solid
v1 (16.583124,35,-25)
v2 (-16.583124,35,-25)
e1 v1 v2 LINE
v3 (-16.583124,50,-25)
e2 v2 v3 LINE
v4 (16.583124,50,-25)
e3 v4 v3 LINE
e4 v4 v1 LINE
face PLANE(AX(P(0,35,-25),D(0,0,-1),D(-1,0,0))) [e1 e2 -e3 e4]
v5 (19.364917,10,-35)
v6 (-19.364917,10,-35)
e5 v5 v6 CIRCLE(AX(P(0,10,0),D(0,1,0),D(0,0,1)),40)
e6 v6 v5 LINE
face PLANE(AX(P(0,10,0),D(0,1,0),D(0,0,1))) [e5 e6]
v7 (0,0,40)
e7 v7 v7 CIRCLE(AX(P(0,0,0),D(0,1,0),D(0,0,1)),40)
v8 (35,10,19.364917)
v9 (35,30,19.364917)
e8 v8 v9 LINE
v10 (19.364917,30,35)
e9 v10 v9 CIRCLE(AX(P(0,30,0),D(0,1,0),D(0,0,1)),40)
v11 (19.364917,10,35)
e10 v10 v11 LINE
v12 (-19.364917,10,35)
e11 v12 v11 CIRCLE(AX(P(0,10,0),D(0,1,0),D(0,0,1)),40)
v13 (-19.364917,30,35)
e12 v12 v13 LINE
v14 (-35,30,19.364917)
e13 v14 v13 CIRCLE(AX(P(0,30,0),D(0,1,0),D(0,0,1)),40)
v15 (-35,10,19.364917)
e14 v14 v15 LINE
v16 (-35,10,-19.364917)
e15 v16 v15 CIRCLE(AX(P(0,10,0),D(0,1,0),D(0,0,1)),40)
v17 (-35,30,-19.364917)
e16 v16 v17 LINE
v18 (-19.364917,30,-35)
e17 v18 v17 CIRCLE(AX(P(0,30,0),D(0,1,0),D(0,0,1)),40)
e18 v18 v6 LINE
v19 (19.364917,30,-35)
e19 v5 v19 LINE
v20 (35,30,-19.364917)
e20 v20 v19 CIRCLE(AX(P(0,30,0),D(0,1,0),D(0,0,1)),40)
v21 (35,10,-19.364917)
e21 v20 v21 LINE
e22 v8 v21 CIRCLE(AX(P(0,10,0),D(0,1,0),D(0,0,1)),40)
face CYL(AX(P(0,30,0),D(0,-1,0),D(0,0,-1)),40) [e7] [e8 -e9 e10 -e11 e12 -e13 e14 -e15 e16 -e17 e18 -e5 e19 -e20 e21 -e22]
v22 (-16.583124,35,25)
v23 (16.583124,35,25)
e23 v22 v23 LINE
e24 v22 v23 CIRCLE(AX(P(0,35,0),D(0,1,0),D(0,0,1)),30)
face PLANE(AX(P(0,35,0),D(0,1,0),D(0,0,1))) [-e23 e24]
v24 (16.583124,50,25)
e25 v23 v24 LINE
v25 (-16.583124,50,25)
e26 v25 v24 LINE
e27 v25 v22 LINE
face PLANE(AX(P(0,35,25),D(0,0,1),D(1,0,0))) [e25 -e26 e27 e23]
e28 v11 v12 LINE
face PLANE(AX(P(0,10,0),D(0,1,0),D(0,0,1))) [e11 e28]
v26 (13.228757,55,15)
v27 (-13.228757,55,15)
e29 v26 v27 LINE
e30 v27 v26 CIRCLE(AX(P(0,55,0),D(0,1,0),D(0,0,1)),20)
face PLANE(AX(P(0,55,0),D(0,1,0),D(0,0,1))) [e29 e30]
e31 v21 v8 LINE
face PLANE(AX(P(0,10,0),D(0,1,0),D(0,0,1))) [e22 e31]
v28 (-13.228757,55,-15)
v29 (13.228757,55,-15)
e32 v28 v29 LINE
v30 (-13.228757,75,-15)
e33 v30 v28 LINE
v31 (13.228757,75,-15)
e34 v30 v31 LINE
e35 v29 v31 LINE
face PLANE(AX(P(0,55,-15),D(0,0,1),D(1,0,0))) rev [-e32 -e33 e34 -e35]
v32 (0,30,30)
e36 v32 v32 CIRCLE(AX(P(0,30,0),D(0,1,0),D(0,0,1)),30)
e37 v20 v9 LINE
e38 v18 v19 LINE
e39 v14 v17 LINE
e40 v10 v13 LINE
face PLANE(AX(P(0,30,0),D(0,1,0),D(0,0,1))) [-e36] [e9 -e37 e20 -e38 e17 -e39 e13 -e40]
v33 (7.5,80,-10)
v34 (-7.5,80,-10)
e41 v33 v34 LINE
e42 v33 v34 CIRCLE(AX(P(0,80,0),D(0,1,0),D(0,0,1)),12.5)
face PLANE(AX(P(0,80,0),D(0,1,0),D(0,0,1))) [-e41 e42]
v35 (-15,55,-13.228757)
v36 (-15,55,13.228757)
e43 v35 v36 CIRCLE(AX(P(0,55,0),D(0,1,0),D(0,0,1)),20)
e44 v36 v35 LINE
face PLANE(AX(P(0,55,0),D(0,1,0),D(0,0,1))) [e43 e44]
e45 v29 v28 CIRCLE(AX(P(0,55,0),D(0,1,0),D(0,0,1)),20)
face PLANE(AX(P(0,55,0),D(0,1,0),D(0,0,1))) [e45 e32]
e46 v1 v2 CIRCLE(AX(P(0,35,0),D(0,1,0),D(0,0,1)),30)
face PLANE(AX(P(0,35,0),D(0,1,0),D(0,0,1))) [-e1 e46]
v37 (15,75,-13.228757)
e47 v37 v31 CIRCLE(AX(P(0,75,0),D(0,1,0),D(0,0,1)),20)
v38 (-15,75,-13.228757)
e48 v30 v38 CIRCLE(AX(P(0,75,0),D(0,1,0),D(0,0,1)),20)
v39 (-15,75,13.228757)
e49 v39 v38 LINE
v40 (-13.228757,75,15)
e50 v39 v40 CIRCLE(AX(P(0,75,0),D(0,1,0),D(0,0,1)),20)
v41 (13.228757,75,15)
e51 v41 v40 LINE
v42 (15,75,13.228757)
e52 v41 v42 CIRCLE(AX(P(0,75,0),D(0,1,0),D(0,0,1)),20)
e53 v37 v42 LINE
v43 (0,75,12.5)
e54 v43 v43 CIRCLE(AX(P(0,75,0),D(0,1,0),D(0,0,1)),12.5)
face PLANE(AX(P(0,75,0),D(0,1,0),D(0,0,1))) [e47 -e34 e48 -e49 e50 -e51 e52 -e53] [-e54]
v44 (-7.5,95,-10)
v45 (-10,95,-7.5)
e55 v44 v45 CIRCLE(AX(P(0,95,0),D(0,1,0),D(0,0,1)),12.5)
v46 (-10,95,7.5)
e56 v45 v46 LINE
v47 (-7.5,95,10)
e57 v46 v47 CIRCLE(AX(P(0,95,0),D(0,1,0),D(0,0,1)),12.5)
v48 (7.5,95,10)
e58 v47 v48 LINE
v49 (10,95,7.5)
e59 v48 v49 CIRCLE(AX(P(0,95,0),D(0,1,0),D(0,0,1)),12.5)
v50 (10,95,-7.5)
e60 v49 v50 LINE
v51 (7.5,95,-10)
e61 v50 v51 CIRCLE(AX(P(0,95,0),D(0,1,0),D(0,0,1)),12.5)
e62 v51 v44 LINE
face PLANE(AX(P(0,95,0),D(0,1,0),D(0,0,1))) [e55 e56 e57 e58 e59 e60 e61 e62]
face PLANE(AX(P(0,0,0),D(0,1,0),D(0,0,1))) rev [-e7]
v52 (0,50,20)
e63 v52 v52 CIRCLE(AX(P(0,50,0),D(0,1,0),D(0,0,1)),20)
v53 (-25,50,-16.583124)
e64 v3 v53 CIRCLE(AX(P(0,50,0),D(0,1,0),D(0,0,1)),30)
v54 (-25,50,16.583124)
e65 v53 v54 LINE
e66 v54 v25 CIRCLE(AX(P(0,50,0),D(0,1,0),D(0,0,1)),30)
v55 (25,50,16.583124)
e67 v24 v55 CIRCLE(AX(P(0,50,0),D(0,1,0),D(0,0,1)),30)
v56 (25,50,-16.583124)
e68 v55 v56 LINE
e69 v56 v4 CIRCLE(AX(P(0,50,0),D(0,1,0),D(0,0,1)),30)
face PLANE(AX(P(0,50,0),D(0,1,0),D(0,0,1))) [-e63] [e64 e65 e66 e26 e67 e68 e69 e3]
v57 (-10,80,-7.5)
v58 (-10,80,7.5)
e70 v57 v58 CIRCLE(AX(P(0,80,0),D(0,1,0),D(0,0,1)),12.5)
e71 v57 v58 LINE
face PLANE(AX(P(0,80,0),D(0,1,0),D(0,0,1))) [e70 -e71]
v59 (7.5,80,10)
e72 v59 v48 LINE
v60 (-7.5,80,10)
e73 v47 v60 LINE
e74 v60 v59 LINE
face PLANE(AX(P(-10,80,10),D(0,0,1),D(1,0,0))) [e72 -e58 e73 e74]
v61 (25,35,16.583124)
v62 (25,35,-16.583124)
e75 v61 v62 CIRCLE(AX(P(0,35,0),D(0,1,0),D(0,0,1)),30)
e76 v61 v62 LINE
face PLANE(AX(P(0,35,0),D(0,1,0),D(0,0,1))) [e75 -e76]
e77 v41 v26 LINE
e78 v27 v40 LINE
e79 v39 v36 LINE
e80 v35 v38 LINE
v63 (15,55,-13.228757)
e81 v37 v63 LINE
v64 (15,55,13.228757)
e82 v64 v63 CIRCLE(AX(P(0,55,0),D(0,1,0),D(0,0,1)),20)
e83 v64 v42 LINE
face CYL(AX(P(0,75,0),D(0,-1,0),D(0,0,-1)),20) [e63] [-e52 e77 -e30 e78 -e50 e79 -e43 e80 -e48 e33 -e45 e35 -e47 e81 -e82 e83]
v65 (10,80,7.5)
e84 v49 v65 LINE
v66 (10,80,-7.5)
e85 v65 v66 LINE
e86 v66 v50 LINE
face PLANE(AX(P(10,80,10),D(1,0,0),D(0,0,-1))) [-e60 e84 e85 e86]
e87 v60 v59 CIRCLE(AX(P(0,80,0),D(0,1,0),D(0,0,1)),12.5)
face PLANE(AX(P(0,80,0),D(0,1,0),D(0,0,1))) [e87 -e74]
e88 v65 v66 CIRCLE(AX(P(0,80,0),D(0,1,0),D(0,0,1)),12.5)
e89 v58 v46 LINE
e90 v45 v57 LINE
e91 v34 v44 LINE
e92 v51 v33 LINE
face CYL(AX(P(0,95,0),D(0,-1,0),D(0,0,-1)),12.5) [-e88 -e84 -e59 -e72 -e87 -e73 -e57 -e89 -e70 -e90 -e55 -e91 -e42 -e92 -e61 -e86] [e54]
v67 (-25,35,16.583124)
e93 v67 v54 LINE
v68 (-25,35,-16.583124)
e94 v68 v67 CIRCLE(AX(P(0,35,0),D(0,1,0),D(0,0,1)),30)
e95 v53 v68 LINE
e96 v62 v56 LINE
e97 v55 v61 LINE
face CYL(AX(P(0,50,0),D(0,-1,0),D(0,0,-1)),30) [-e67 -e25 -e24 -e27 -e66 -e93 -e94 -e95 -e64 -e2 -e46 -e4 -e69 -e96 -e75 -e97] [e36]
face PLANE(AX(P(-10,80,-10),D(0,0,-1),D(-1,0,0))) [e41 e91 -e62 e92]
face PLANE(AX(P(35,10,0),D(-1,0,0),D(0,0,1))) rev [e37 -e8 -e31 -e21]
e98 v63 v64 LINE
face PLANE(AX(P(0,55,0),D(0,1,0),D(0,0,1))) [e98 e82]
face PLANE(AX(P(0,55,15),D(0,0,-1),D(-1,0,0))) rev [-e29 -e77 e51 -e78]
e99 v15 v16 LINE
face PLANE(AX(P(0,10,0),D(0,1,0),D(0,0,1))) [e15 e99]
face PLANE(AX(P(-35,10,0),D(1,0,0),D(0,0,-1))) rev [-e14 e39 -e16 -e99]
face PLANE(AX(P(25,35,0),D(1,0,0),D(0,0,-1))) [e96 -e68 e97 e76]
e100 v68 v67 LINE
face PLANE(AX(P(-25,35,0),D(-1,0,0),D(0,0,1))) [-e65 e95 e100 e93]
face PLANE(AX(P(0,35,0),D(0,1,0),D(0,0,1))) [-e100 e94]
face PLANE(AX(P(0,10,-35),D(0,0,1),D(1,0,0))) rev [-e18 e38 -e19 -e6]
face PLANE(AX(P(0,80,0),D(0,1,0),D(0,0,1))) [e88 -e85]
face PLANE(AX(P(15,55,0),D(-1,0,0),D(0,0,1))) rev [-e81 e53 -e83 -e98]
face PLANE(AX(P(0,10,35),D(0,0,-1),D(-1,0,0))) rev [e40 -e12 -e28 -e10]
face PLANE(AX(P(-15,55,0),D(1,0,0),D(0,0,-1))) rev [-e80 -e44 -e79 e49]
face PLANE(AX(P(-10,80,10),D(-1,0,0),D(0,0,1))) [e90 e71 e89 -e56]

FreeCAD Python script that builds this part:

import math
import FreeCAD as App
import Part
import Sketcher

doc = App.newDocument("Part")
body = doc.addObject("PartDesign::Body", "Body")

sketch1 = doc.addObject("Sketcher::SketchObject", "Sketch")
body.addObject(sketch1)
sketch1.AttachmentSupport = (doc.XZ_Plane, [""])
sketch1.MapMode = "FlatFace"
sketch1.addGeometry(Part.Circle(App.Vector(0, 0, 0), App.Vector(0, 0, 1), 40), False)
sketch1.addConstraint([
    Sketcher.Constraint("Coincident", 0, 3, -1, 1),
    Sketcher.Constraint("Diameter", 0, 80.0),
])
pad1 = doc.addObject("PartDesign::Pad", "Pad")
body.addObject(pad1)
pad1.Profile = sketch1
pad1.Length = 30
pad1.Reversed = True

sketch2 = doc.addObject("Sketcher::SketchObject", "Sketch001")
body.addObject(sketch2)
sketch2.AttachmentSupport = (doc.XZ_Plane, [""])
sketch2.MapMode = "FlatFace"
sketch2.AttachmentOffset = App.Placement(App.Vector(0, 0, -30), App.Rotation())
sketch2.addGeometry(Part.Circle(App.Vector(0, 0, 0), App.Vector(0, 0, 1), 30), False)
sketch2.addConstraint([
    Sketcher.Constraint("Coincident", 0, 3, -1, 1),
    Sketcher.Constraint("Diameter", 0, 60.0),
])
pad2 = doc.addObject("PartDesign::Pad", "Pad001")
body.addObject(pad2)
pad2.Profile = sketch2
pad2.Length = 20
pad2.Reversed = True

sketch3 = doc.addObject("Sketcher::SketchObject", "Sketch002")
body.addObject(sketch3)
sketch3.AttachmentSupport = (doc.XZ_Plane, [""])
sketch3.MapMode = "FlatFace"
sketch3.AttachmentOffset = App.Placement(App.Vector(0, 0, -50), App.Rotation())
sketch3.addGeometry(Part.Circle(App.Vector(0, 0, 0), App.Vector(0, 0, 1), 20), False)
sketch3.addConstraint([
    Sketcher.Constraint("Coincident", 0, 3, -1, 1),
    Sketcher.Constraint("Diameter", 0, 40.0),
])
pad3 = doc.addObject("PartDesign::Pad", "Pad002")
body.addObject(pad3)
pad3.Profile = sketch3
pad3.Length = 25
pad3.Reversed = True

sketch4 = doc.addObject("Sketcher::SketchObject", "Sketch003")
body.addObject(sketch4)
sketch4.AttachmentSupport = (doc.XZ_Plane, [""])
sketch4.MapMode = "FlatFace"
sketch4.AttachmentOffset = App.Placement(App.Vector(0, 0, -75), App.Rotation())
sketch4.addGeometry(Part.Circle(App.Vector(0, 0, 0), App.Vector(0, 0, 1), 12), False)
sketch4.addConstraint([
    Sketcher.Constraint("Coincident", 0, 3, -1, 1),
    Sketcher.Constraint("Diameter", 0, 25.0),
])
pad4 = doc.addObject("PartDesign::Pad", "Pad003")
body.addObject(pad4)
pad4.Profile = sketch4
pad4.Length = 20
pad4.Reversed = True

sketch5 = doc.addObject("Sketcher::SketchObject", "Sketch004")
body.addObject(sketch5)
sketch5.AttachmentSupport = (doc.XZ_Plane, [""])
sketch5.MapMode = "FlatFace"
sketch5.AttachmentOffset = App.Placement(App.Vector(0, 0, -95), App.Rotation())
sketch5.addGeometry([
    Part.LineSegment(App.Vector(-56, -56, 0), App.Vector(-56, 56, 0)),
    Part.LineSegment(App.Vector(-56, 56, 0), App.Vector(56, 56, 0)),
    Part.LineSegment(App.Vector(56, 56, 0), App.Vector(56, -56, 0)),
    Part.LineSegment(App.Vector(56, -56, 0), App.Vector(-56, -56, 0)),
    Part.LineSegment(App.Vector(10, 10, 0), App.Vector(-10, 10, 0)),
    Part.LineSegment(App.Vector(-10, 10, 0), App.Vector(-10, -10, 0)),
    Part.LineSegment(App.Vector(-10, -10, 0), App.Vector(10, -10, 0)),
    Part.LineSegment(App.Vector(10, -10, 0), App.Vector(10, 10, 0)),
], False)
sketch5.addConstraint([
    Sketcher.Constraint("Coincident", 0, 2, 1, 1),
    Sketcher.Constraint("Coincident", 1, 2, 2, 1),
    Sketcher.Constraint("Coincident", 2, 2, 3, 1),
    Sketcher.Constraint("Coincident", 3, 2, 0, 1),
    Sketcher.Constraint("Coincident", 4, 2, 5, 1),
    Sketcher.Constraint("Coincident", 5, 2, 6, 1),
    Sketcher.Constraint("Coincident", 6, 2, 7, 1),
    Sketcher.Constraint("Coincident", 7, 2, 4, 1),
    Sketcher.Constraint("Vertical", 0),
    Sketcher.Constraint("Horizontal", 1),
    Sketcher.Constraint("Vertical", 2),
    Sketcher.Constraint("Horizontal", 3),
    Sketcher.Constraint("Horizontal", 4),
    Sketcher.Constraint("Vertical", 5),
    Sketcher.Constraint("Horizontal", 6),
    Sketcher.Constraint("Vertical", 7),
    Sketcher.Constraint("Symmetric", 0, 2, 2, 2, -1, 1),
    Sketcher.Constraint("Symmetric", 4, 2, 6, 2, -1, 1),
    Sketcher.Constraint("Equal", 3, 0),
    Sketcher.Constraint("Equal", 6, 5),
    Sketcher.Constraint("DistanceX", 4, 2, 4, 1, 20.0),
    Sketcher.Constraint("DistanceX", 1, 1, 1, 2, 111.546),
])
pocket1 = doc.addObject("PartDesign::Pocket", "Pocket")
body.addObject(pocket1)
pocket1.Profile = sketch5
pocket1.Length = 15
pocket1.Reversed = True

sketch6 = doc.addObject("Sketcher::SketchObject", "Sketch005")
body.addObject(sketch6)
sketch6.AttachmentSupport = (doc.XZ_Plane, [""])
sketch6.MapMode = "FlatFace"
sketch6.AttachmentOffset = App.Placement(App.Vector(0, 0, -75), App.Rotation())
sketch6.addGeometry([
    Part.LineSegment(App.Vector(-6, -21, 0), App.Vector(-15, -15, 0)),
    Part.LineSegment(App.Vector(-15, -15, 0), App.Vector(15, -15, 0)),
    Part.LineSegment(App.Vector(15, -15, 0), App.Vector(14, -21, 0)),
    Part.LineSegment(App.Vector(14, -21, 0), App.Vector(-6, -21, 0)),
    Part.LineSegment(App.Vector(-15, 15, 0), App.Vector(-15, -15, 0)),
    Part.LineSegment(App.Vector(-15, -15, 0), App.Vector(-21, -14, 0)),
    Part.LineSegment(App.Vector(-21, -14, 0), App.Vector(-21, 6, 0)),
    Part.LineSegment(App.Vector(-21, 6, 0), App.Vector(-15, 15, 0)),
    Part.LineSegment(App.Vector(21, -6, 0), App.Vector(15, -15, 0)),
    Part.LineSegment(App.Vector(15, -15, 0), App.Vector(15, 15, 0)),
    Part.LineSegment(App.Vector(15, 15, 0), App.Vector(21, 14, 0)),
    Part.LineSegment(App.Vector(21, 14, 0), App.Vector(21, -6, 0)),
    Part.LineSegment(App.Vector(15, 15, 0), App.Vector(-15, 15, 0)),
    Part.LineSegment(App.Vector(-15, 15, 0), App.Vector(-14, 21, 0)),
    Part.LineSegment(App.Vector(-14, 21, 0), App.Vector(6, 21, 0)),
    Part.LineSegment(App.Vector(6, 21, 0), App.Vector(15, 15, 0)),
], False)
sketch6.addConstraint([
    Sketcher.Constraint("Coincident", 0, 2, 1, 1),
    Sketcher.Constraint("Coincident", 1, 2, 2, 1),
    Sketcher.Constraint("Coincident", 2, 2, 3, 1),
    Sketcher.Constraint("Coincident", 3, 2, 0, 1),
    Sketcher.Constraint("Coincident", 4, 2, 5, 1),
    Sketcher.Constraint("Coincident", 5, 2, 6, 1),
    Sketcher.Constraint("Coincident", 6, 2, 7, 1),
    Sketcher.Constraint("Coincident", 7, 2, 4, 1),
    Sketcher.Constraint("Coincident", 8, 2, 9, 1),
    Sketcher.Constraint("Coincident", 9, 2, 10, 1),
    Sketcher.Constraint("Coincident", 10, 2, 11, 1),
    Sketcher.Constraint("Coincident", 11, 2, 8, 1),
    Sketcher.Constraint("Coincident", 12, 2, 13, 1),
    Sketcher.Constraint("Coincident", 13, 2, 14, 1),
    Sketcher.Constraint("Coincident", 14, 2, 15, 1),
    Sketcher.Constraint("Coincident", 15, 2, 12, 1),
    Sketcher.Constraint("Horizontal", 1),
    Sketcher.Constraint("Horizontal", 3),
    Sketcher.Constraint("Vertical", 4),
    Sketcher.Constraint("Vertical", 6),
    Sketcher.Constraint("Vertical", 9),
    Sketcher.Constraint("Vertical", 11),
    Sketcher.Constraint("Horizontal", 12),
    Sketcher.Constraint("Horizontal", 14),
    Sketcher.Constraint("Coincident", 4, 2, 0, 2),
    Sketcher.Constraint("Coincident", 8, 2, 1, 2),
    Sketcher.Constraint("Coincident", 12, 2, 7, 2),
    Sketcher.Constraint("Coincident", 15, 2, 9, 2),
    Sketcher.Constraint("Symmetric", 1, 2, 7, 2, -1, 1),
    Sketcher.Constraint("Symmetric", 5, 2, 10, 2, -1, 1),
    Sketcher.Constraint("Symmetric", 2, 2, 13, 2, -1, 1),
    Sketcher.Constraint("Perpendicular", 2, 5),
    Sketcher.Constraint("Perpendicular", 0, 7),
    Sketcher.Constraint("Parallel", 7, 8),
    Sketcher.Constraint("Perpendicular", 8, 15),
    Sketcher.Constraint("Equal", 12, 4),
    Sketcher.Constraint("Equal", 14, 6),
    Sketcher.Constraint("DistanceX", 1, 1, 1, 2, 30.0),
    Sketcher.Constraint("DistanceX", 3, 2, 3, 1, 20.0),
    Sketcher.Constraint("Distance", 2, 6.0),
    Sketcher.Constraint("DistanceY", 2, 2, -1, 1, 20.949618),
])
pocket2 = doc.addObject("PartDesign::Pocket", "Pocket001")
body.addObject(pocket2)
pocket2.Profile = sketch6
pocket2.Length = 20
pocket2.Reversed = True

sketch7 = doc.addObject("Sketcher::SketchObject", "Sketch006")
body.addObject(sketch7)
sketch7.AttachmentSupport = (doc.XZ_Plane, [""])
sketch7.MapMode = "FlatFace"
sketch7.AttachmentOffset = App.Placement(App.Vector(0, 0, -50), App.Rotation())
sketch7.addGeometry([
    Part.LineSegment(App.Vector(-25, -25, 0), App.Vector(25, -25, 0)),
    Part.ArcOfCircle(Part.Circle(App.Vector(0, 0, 0), App.Vector(0, 0, 1), 35), math.radians(-135), math.radians(-45)),
    Part.LineSegment(App.Vector(25, -25, 0), App.Vector(25, 25, 0)),
    Part.ArcOfCircle(Part.Circle(App.Vector(0, 0, 0), App.Vector(0, 0, 1), 35), math.radians(-45), math.radians(45)),
    Part.LineSegment(App.Vector(25, 25, 0), App.Vector(-25, 25, 0)),
    Part.ArcOfCircle(Part.Circle(App.Vector(0, 0, 0), App.Vector(0, 0, 1), 35), math.radians(45), math.radians(135)),
    Part.LineSegment(App.Vector(-25, 25, 0), App.Vector(-25, -25, 0)),
    Part.ArcOfCircle(Part.Circle(App.Vector(0, 0, 0), App.Vector(0, 0, 1), 35), math.radians(135), math.radians(225)),
], False)
sketch7.addConstraint([
    Sketcher.Constraint("Coincident", 0, 1, 1, 1),
    Sketcher.Constraint("Coincident", 1, 2, 0, 2),
    Sketcher.Constraint("Coincident", 2, 1, 3, 1),
    Sketcher.Constraint("Coincident", 3, 2, 2, 2),
    Sketcher.Constraint("Coincident", 4, 1, 5, 1),
    Sketcher.Constraint("Coincident", 5, 2, 4, 2),
    Sketcher.Constraint("Coincident", 6, 1, 7, 1),
    Sketcher.Constraint("Coincident", 7, 2, 6, 2),
    Sketcher.Constraint("Horizontal", 0),
    Sketcher.Constraint("Vertical", 2),
    Sketcher.Constraint("Horizontal", 4),
    Sketcher.Constraint("Vertical", 6),
    Sketcher.Constraint("Coincident", 1, 3, -1, 1),
    Sketcher.Constraint("Coincident", 3, 3, -1, 1),
    Sketcher.Constraint("Coincident", 5, 3, -1, 1),
    Sketcher.Constraint("Coincident", 7, 3, -1, 1),
    Sketcher.Constraint("Equal", 1, 3),
    Sketcher.Constraint("Equal", 3, 5),
    Sketcher.Constraint("Equal", 5, 7),
    Sketcher.Constraint("Horizontal", 3, 2, 6, 1),
    Sketcher.Constraint("Vertical", 1, 2, 4, 1),
    Sketcher.Constraint("Equal", 4, 2),
    Sketcher.Constraint("DistanceY", 0, 1, -1, 1, 25.0),
    Sketcher.Constraint("Radius", 1, 35.29782),
])
pocket3 = doc.addObject("PartDesign::Pocket", "Pocket002")
body.addObject(pocket3)
pocket3.Profile = sketch7
pocket3.Length = 15
pocket3.Reversed = True

sketch8 = doc.addObject("Sketcher::SketchObject", "Sketch007")
body.addObject(sketch8)
sketch8.AttachmentSupport = (doc.XZ_Plane, [""])
sketch8.MapMode = "FlatFace"
sketch8.AttachmentOffset = App.Placement(App.Vector(0, 0, -30), App.Rotation())
sketch8.addGeometry([
    Part.LineSegment(App.Vector(-35, -35.7, 0), App.Vector(-35, -35, 0)),
    Part.LineSegment(App.Vector(-35, -35, 0), App.Vector(35, -35, 0)),
    Part.LineSegment(App.Vector(35, -35, 0), App.Vector(35, -35.7, 0)),
    Part.ArcOfCircle(Part.Circle(App.Vector(0, 0, 0), App.Vector(0, 0, 1), 50), math.radians(-134), math.radians(-46)),
    Part.LineSegment(App.Vector(-35, -35, 0), App.Vector(-35.7, -35, 0)),
    Part.ArcOfCircle(Part.Circle(App.Vector(0, 0, 0), App.Vector(0, 0, 1), 50), math.radians(136), math.radians(224)),
    Part.LineSegment(App.Vector(-35.7, 35, 0), App.Vector(-35, 35, 0)),
    Part.LineSegment(App.Vector(-35, 35, 0), App.Vector(-35, -35, 0)),
    Part.LineSegment(App.Vector(35.7, -35, 0), App.Vector(35, -35, 0)),
    Part.LineSegment(App.Vector(35, -35, 0), App.Vector(35, 35, 0)),
    Part.LineSegment(App.Vector(35, 35, 0), App.Vector(35.7, 35, 0)),
    Part.ArcOfCircle(Part.Circle(App.Vector(0, 0, 0), App.Vector(0, 0, 1), 50), math.radians(-44), math.radians(44)),
    Part.LineSegment(App.Vector(35, 35, 0), App.Vector(-35, 35, 0)),
    Part.LineSegment(App.Vector(-35, 35, 0), App.Vector(-35, 35.7, 0)),
    Part.ArcOfCircle(Part.Circle(App.Vector(0, 0, 0), App.Vector(0, 0, 1), 50), math.radians(46), math.radians(134)),
    Part.LineSegment(App.Vector(35, 35.7, 0), App.Vector(35, 35, 0)),
], False)
sketch8.addConstraint([
    Sketcher.Constraint("Coincident", 0, 2, 1, 1),
    Sketcher.Constraint("Coincident", 1, 2, 2, 1),
    Sketcher.Constraint("Coincident", 2, 2, 3, 2),
    Sketcher.Constraint("Coincident", 3, 1, 0, 1),
    Sketcher.Constraint("Coincident", 4, 2, 5, 2),
    Sketcher.Constraint("Coincident", 5, 1, 6, 1),
    Sketcher.Constraint("Coincident", 6, 2, 7, 1),
    Sketcher.Constraint("Coincident", 7, 2, 4, 1),
    Sketcher.Constraint("Coincident", 8, 2, 9, 1),
    Sketcher.Constraint("Coincident", 9, 2, 10, 1),
    Sketcher.Constraint("Coincident", 10, 2, 11, 2),
    Sketcher.Constraint("Coincident", 11, 1, 8, 1),
    Sketcher.Constraint("Coincident", 12, 2, 13, 1),
    Sketcher.Constraint("Coincident", 13, 2, 14, 2),
    Sketcher.Constraint("Coincident", 14, 1, 15, 1),
    Sketcher.Constraint("Coincident", 15, 2, 12, 1),
    Sketcher.Constraint("Vertical", 0),
    Sketcher.Constraint("Horizontal", 1),
    Sketcher.Constraint("Vertical", 2),
    Sketcher.Constraint("Horizontal", 4),
    Sketcher.Constraint("Horizontal", 6),
    Sketcher.Constraint("Vertical", 7),
    Sketcher.Constraint("Horizontal", 8),
    Sketcher.Constraint("Vertical", 9),
    Sketcher.Constraint("Horizontal", 10),
    Sketcher.Constraint("Horizontal", 12),
    Sketcher.Constraint("Vertical", 13),
    Sketcher.Constraint("Vertical", 15),
    Sketcher.Constraint("Coincident", 3, 3, -1, 1),
    Sketcher.Constraint("Coincident", 5, 3, -1, 1),
    Sketcher.Constraint("Coincident", 11, 3, -1, 1),
    Sketcher.Constraint("Coincident", 14, 3, -1, 1),
    Sketcher.Constraint("Coincident", 7, 2, 0, 2),
    Sketcher.Constraint("Coincident", 8, 2, 1, 2),
    Sketcher.Constraint("Coincident", 12, 2, 6, 2),
    Sketcher.Constraint("Coincident", 15, 2, 9, 2),
    Sketcher.Constraint("Equal", 3, 5),
    Sketcher.Constraint("Equal", 5, 11),
    Sketcher.Constraint("Equal", 11, 14),
    Sketcher.Constraint("Symmetric", 1, 2, 6, 2, -1, 1),
    Sketcher.Constraint("Equal", 10, 0),
    Sketcher.Constraint("Radius", 3, 50.0),
    Sketcher.Constraint("DistanceX", 1, 1, 1, 2, 70.0),
])
pocket4 = doc.addObject("PartDesign::Pocket", "Pocket003")
body.addObject(pocket4)
pocket4.Profile = sketch8
pocket4.Length = 20
pocket4.Reversed = True

doc.recompute()
